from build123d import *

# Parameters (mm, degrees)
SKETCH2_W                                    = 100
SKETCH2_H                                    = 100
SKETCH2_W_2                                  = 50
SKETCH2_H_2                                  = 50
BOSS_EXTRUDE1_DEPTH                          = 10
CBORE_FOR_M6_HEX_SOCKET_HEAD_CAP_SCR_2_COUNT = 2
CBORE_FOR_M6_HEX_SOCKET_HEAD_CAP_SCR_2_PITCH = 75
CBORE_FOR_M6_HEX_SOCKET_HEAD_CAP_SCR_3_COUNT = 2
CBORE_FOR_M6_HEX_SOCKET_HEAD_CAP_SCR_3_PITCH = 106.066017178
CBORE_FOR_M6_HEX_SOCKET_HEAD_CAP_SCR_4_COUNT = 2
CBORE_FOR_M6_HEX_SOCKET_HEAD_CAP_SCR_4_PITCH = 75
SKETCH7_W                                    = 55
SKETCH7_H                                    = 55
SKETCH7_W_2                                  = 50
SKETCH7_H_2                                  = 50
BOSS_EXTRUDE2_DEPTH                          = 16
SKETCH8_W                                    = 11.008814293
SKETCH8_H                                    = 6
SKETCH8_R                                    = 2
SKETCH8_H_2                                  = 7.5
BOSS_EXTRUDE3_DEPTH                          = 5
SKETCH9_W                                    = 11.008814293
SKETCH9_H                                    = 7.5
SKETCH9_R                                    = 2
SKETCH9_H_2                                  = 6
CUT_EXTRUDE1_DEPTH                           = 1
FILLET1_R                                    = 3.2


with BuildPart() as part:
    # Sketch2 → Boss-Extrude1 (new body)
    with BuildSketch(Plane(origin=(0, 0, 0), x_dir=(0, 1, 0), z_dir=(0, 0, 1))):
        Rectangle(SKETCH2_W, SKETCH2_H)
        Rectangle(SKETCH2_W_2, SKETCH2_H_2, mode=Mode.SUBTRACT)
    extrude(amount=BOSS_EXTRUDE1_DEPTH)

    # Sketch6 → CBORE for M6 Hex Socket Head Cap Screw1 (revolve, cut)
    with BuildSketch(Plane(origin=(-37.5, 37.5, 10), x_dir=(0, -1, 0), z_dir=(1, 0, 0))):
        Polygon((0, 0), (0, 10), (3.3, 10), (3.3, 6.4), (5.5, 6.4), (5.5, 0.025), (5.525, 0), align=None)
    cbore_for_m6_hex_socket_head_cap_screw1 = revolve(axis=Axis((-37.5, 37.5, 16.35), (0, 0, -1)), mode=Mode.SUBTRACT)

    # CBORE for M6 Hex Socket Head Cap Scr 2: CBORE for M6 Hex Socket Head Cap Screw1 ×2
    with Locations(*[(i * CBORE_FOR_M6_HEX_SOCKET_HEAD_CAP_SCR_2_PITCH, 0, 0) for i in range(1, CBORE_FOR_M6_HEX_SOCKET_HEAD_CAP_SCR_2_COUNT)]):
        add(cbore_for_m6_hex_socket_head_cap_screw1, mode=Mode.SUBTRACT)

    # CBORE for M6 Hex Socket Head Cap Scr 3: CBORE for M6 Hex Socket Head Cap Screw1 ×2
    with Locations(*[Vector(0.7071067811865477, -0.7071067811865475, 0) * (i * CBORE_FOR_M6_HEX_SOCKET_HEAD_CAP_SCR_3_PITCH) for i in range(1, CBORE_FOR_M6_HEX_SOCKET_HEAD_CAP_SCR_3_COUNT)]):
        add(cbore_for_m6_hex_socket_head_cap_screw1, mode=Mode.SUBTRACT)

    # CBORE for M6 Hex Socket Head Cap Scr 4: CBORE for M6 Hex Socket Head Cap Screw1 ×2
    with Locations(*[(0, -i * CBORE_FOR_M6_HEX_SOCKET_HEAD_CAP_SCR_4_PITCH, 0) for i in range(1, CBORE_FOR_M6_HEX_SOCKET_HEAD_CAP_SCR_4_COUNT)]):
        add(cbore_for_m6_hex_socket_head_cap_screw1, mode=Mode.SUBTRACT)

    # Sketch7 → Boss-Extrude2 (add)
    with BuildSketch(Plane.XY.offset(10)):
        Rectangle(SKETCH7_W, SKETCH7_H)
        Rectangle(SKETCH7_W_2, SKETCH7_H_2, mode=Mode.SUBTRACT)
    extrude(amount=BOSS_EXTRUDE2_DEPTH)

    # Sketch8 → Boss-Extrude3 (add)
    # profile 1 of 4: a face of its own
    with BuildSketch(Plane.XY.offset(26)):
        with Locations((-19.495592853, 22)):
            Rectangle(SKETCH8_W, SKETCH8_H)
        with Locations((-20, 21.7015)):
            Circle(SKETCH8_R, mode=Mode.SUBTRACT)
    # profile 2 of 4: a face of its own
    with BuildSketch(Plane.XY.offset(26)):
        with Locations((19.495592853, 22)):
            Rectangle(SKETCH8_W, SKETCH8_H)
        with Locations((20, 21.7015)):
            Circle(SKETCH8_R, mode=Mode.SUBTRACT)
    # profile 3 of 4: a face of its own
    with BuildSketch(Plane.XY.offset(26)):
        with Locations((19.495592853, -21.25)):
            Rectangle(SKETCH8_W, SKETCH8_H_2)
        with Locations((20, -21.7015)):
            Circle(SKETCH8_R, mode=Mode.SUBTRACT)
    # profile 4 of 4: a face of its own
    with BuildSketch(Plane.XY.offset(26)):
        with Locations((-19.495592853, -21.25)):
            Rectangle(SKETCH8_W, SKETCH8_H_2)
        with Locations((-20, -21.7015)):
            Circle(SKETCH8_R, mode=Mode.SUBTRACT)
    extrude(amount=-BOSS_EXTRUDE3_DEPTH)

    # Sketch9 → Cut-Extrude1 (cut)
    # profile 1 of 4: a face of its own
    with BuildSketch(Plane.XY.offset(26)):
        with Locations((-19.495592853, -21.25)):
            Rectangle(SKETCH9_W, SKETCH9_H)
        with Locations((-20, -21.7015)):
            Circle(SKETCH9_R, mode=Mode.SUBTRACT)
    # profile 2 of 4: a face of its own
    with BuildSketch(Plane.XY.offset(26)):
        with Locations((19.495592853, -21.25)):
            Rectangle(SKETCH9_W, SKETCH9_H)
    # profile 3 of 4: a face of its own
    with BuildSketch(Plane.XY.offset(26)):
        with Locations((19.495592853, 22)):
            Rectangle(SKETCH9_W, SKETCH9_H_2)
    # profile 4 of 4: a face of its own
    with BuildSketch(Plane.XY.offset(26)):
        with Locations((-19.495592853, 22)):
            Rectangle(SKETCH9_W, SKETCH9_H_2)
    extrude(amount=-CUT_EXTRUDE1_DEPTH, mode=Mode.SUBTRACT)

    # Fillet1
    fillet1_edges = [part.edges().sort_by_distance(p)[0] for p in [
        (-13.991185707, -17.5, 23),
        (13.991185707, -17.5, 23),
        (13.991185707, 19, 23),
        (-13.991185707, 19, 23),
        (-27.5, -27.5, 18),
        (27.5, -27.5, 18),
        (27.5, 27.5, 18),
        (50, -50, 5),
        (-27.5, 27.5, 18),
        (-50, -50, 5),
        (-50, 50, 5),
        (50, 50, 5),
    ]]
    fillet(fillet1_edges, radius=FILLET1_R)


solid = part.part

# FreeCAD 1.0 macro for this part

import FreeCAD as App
import Part
import Sketcher
from FreeCAD import Vector
Q = App.Units.Quantity


def edges_at(feature, points):
    """Names of the edges that pass closest to the given points."""
    edges = feature.Shape.Edges
    near = lambda p: min(range(len(edges)), key=lambda i: edges[i].distToShape(Part.Vertex(*p))[0])
    return sorted({f"Edge{near(p) + 1}" for p in points})

doc = App.newDocument("Part")
body = doc.addObject("PartDesign::Body", "Body")

sketch1 = doc.addObject("Sketcher::SketchObject", "Sketch")
body.addObject(sketch1)
sketch1.AttachmentSupport = (doc.XY_Plane, [""])
sketch1.MapMode = "FlatFace"
sketch1.addGeometry([
    Part.LineSegment(Vector(-50, -50, 0), Vector(50, -50, 0)),
    Part.LineSegment(Vector(50, -50, 0), Vector(50, 50, 0)),
    Part.LineSegment(Vector(50, 50, 0), Vector(-50, 50, 0)),
    Part.LineSegment(Vector(-50, 50, 0), Vector(-50, -50, 0)),
    Part.LineSegment(Vector(25, 25, 0), Vector(25, -25, 0)),
    Part.LineSegment(Vector(25, -25, 0), Vector(-25, -25, 0)),
    Part.LineSegment(Vector(-25, -25, 0), Vector(-25, 25, 0)),
    Part.LineSegment(Vector(-25, 25, 0), Vector(25, 25, 0)),
], False)
sketch1.addConstraint([
    Sketcher.Constraint("Coincident", 0, 2, 1, 1),
    Sketcher.Constraint("Coincident", 1, 2, 2, 1),
    Sketcher.Constraint("Coincident", 2, 2, 3, 1),
    Sketcher.Constraint("Coincident", 3, 2, 0, 1),
    Sketcher.Constraint("Coincident", 4, 2, 5, 1),
    Sketcher.Constraint("Coincident", 5, 2, 6, 1),
    Sketcher.Constraint("Coincident", 6, 2, 7, 1),
    Sketcher.Constraint("Coincident", 7, 2, 4, 1),
    Sketcher.Constraint("Horizontal", 0),
    Sketcher.Constraint("Vertical", 1),
    Sketcher.Constraint("Horizontal", 2),
    Sketcher.Constraint("Vertical", 3),
    Sketcher.Constraint("Vertical", 4),
    Sketcher.Constraint("Horizontal", 5),
    Sketcher.Constraint("Vertical", 6),
    Sketcher.Constraint("Horizontal", 7),
    Sketcher.Constraint("Symmetric", 0, 2, 2, 2, -1, 1),
    Sketcher.Constraint("Symmetric", 4, 2, 6, 2, -1, 1),
    Sketcher.Constraint("Equal", 2, 1),
    Sketcher.Constraint("Equal", 7, 4),
    Sketcher.Constraint("DistanceX", 0, 1, 0, 2, 100.0),
    Sketcher.Constraint("DistanceX", 5, 2, 5, 1, 50.0),
])
pad1 = doc.addObject("PartDesign::Pad", "Pad")
body.addObject(pad1)
pad1.Profile = sketch1
pad1.Length = 10

sketch2 = doc.addObject("Sketcher::SketchObject", "Sketch001")
body.addObject(sketch2)
sketch2.AttachmentSupport = (doc.YZ_Plane, [""])
sketch2.MapMode = "FlatFace"
sketch2.AttachmentOffset = App.Placement(Vector(0, 0, -37.5), App.Rotation())
sketch2.addGeometry([
    Part.LineSegment(Vector(37.5, 0, 0), Vector(37.5, 10, 0)),
    Part.LineSegment(Vector(37.5, 10, 0), Vector(31.975, 10, 0)),
    Part.LineSegment(Vector(31.975, 10, 0), Vector(32, 9.975, 0)),
    Part.LineSegment(Vector(32, 9.975, 0), Vector(32, 3.6, 0)),
    Part.LineSegment(Vector(32, 3.6, 0), Vector(34.2, 3.6, 0)),
    Part.LineSegment(Vector(34.2, 3.6, 0), Vector(34.2, 0, 0)),
    Part.LineSegment(Vector(34.2, 0, 0), Vector(37.5, 0, 0)),
], False)
sketch2.addGeometry(Part.LineSegment(Vector(37.5, 10, 0), Vector(37.5, 0, 0)), True)
sketch2.addConstraint([
    Sketcher.Constraint("Coincident", 0, 2, 1, 1),
    Sketcher.Constraint("Coincident", 1, 2, 2, 1),
    Sketcher.Constraint("Coincident", 2, 2, 3, 1),
    Sketcher.Constraint("Coincident", 3, 2, 4, 1),
    Sketcher.Constraint("Coincident", 4, 2, 5, 1),
    Sketcher.Constraint("Coincident", 5, 2, 6, 1),
    Sketcher.Constraint("Coincident", 6, 2, 0, 1),
    Sketcher.Constraint("Vertical", 0),
    Sketcher.Constraint("Horizontal", 1),
    Sketcher.Constraint("Vertical", 3),
    Sketcher.Constraint("Horizontal", 4),
    Sketcher.Constraint("Vertical", 5),
    Sketcher.Constraint("Horizontal", 6),
    Sketcher.Constraint("Vertical", 7),
    Sketcher.Constraint("Coincident", 7, 1, 0, 2),
    Sketcher.Constraint("PointOnObject", 5, 2, -1),
    Sketcher.Constraint("PointOnObject", 7, 2, -1),
    Sketcher.Constraint("DistanceY", 0, 1, 0, 2, 10.0),
    Sketcher.Constraint("Angle", 2, Q("-45 deg")),
    Sketcher.Constraint("DistanceX", 4, 1, 4, 2, 2.2),
    Sketcher.Constraint("DistanceX", 6, 1, 6, 2, 3.3),
    Sketcher.Constraint("DistanceY", 5, 2, 5, 1, 3.6),
    Sketcher.Constraint("DistanceX", -1, 1, 2, 2, 32.0),
    Sketcher.Constraint("DistanceX", 1, 2, 1, 1, 5.525),
])
groove = doc.addObject("PartDesign::Groove", "Groove")
body.addObject(groove)
groove.Profile = sketch2
groove.ReferenceAxis = (sketch2, ["Axis0"])
groove.Angle = 360
doc.recompute()

linearpattern = doc.addObject("PartDesign::LinearPattern", "LinearPattern")
body.addObject(linearpattern)
linearpattern.Originals = [groove]
linearpattern.Direction = (doc.X_Axis, [""])
linearpattern.Mode = "offset"
linearpattern.Offset = 75
linearpattern.Occurrences = 2
body.Tip = linearpattern
doc.recompute()

datumline = doc.addObject("PartDesign::Line", "DatumLine")
body.addObject(datumline)
datumline.Placement = App.Placement(Vector(0, 0, 0), App.Rotation(Vector(0, 0, 1), Vector(0.707106781, -0.707106781, 0)))
linearpattern2 = doc.addObject("PartDesign::LinearPattern", "LinearPattern001")
body.addObject(linearpattern2)
linearpattern2.Originals = [groove]
linearpattern2.Direction = (datumline, [""])
linearpattern2.Mode = "offset"
linearpattern2.Offset = 106.066017
linearpattern2.Occurrences = 2
body.Tip = linearpattern2
doc.recompute()

linearpattern3 = doc.addObject("PartDesign::LinearPattern", "LinearPattern002")
body.addObject(linearpattern3)
linearpattern3.Originals = [groove]
linearpattern3.Direction = (doc.Y_Axis, [""])
linearpattern3.Mode = "offset"
linearpattern3.Offset = 75
linearpattern3.Occurrences = 2
linearpattern3.Reversed = True
body.Tip = linearpattern3

sketch3 = doc.addObject("Sketcher::SketchObject", "Sketch002")
body.addObject(sketch3)
sketch3.AttachmentSupport = (doc.XY_Plane, [""])
sketch3.MapMode = "FlatFace"
sketch3.AttachmentOffset = App.Placement(Vector(0, 0, 10), App.Rotation())
sketch3.addGeometry([
    Part.LineSegment(Vector(-27.5, 27.5, 0), Vector(-27.5, -27.5, 0)),
    Part.LineSegment(Vector(-27.5, -27.5, 0), Vector(27.5, -27.5, 0)),
    Part.LineSegment(Vector(27.5, -27.5, 0), Vector(27.5, 27.5, 0)),
    Part.LineSegment(Vector(27.5, 27.5, 0), Vector(-27.5, 27.5, 0)),
    Part.LineSegment(Vector(25, -25, 0), Vector(-25, -25, 0)),
    Part.LineSegment(Vector(-25, -25, 0), Vector(-25, 25, 0)),
    Part.LineSegment(Vector(-25, 25, 0), Vector(25, 25, 0)),
    Part.LineSegment(Vector(25, 25, 0), Vector(25, -25, 0)),
], False)
sketch3.addConstraint([
    Sketcher.Constraint("Coincident", 0, 2, 1, 1),
    Sketcher.Constraint("Coincident", 1, 2, 2, 1),
    Sketcher.Constraint("Coincident", 2, 2, 3, 1),
    Sketcher.Constraint("Coincident", 3, 2, 0, 1),
    Sketcher.Constraint("Coincident", 4, 2, 5, 1),
    Sketcher.Constraint("Coincident", 5, 2, 6, 1),
    Sketcher.Constraint("Coincident", 6, 2, 7, 1),
    Sketcher.Constraint("Coincident", 7, 2, 4, 1),
    Sketcher.Constraint("Vertical", 0),
    Sketcher.Constraint("Horizontal", 1),
    Sketcher.Constraint("Vertical", 2),
    Sketcher.Constraint("Horizontal", 3),
    Sketcher.Constraint("Horizontal", 4),
    Sketcher.Constraint("Vertical", 5),
    Sketcher.Constraint("Horizontal", 6),
    Sketcher.Constraint("Vertical", 7),
    Sketcher.Constraint("Symmetric", 0, 2, 2, 2, -1, 1),
    Sketcher.Constraint("Symmetric", 4, 2, 6, 2, -1, 1),
    Sketcher.Constraint("Equal", 3, 0),
    Sketcher.Constraint("Equal", 6, 5),
    Sketcher.Constraint("DistanceX", 1, 1, 1, 2, 55.0),
    Sketcher.Constraint("DistanceX", 4, 2, 4, 1, 50.0),
])
pad2 = doc.addObject("PartDesign::Pad", "Pad001")
body.addObject(pad2)
pad2.Profile = sketch3
pad2.Length = 16

sketch4 = doc.addObject("Sketcher::SketchObject", "Sketch003")
body.addObject(sketch4)
sketch4.AttachmentSupport = (doc.XY_Plane, [""])
sketch4.MapMode = "FlatFace"
sketch4.AttachmentOffset = App.Placement(Vector(0, 0, 26), App.Rotation())
sketch4.addGeometry([
    Part.LineSegment(Vector(-25, 25, 0), Vector(-25, 19, 0)),
    Part.LineSegment(Vector(-25, 19, 0), Vector(-13.991186, 19, 0)),
    Part.LineSegment(Vector(-13.991186, 19, 0), Vector(-13.991186, 25, 0)),
    Part.LineSegment(Vector(-13.991186, 25, 0), Vector(-25, 25, 0)),
    Part.Circle(Vector(-20, 21.7015, 0), Vector(0, 0, 1), 2),
    Part.LineSegment(Vector(13.991186, 25, 0), Vector(13.991186, 19, 0)),
    Part.LineSegment(Vector(13.991186, 19, 0), Vector(25, 19, 0)),
    Part.LineSegment(Vector(25, 19, 0), Vector(25, 25, 0)),
    Part.LineSegment(Vector(25, 25, 0), Vector(13.991186, 25, 0)),
    Part.Circle(Vector(20, 21.7015, 0), Vector(0, 0, 1), 2),
    Part.LineSegment(Vector(13.991186, -17.5, 0), Vector(13.991186, -25, 0)),
    Part.LineSegment(Vector(13.991186, -25, 0), Vector(25, -25, 0)),
    Part.LineSegment(Vector(25, -25, 0), Vector(25, -17.5, 0)),
    Part.LineSegment(Vector(25, -17.5, 0), Vector(13.991186, -17.5, 0)),
    Part.Circle(Vector(20, -21.7015, 0), Vector(0, 0, 1), 2),
    Part.LineSegment(Vector(-25, -17.5, 0), Vector(-25, -25, 0)),
    Part.LineSegment(Vector(-25, -25, 0), Vector(-13.991186, -25, 0)),
    Part.LineSegment(Vector(-13.991186, -25, 0), Vector(-13.991186, -17.5, 0)),
    Part.LineSegment(Vector(-13.991186, -17.5, 0), Vector(-25, -17.5, 0)),
    Part.Circle(Vector(-20, -21.7015, 0), Vector(0, 0, 1), 2),
], False)
sketch4.addConstraint([
    Sketcher.Constraint("Coincident", 0, 2, 1, 1),
    Sketcher.Constraint("Coincident", 1, 2, 2, 1),
    Sketcher.Constraint("Coincident", 2, 2, 3, 1),
    Sketcher.Constraint("Coincident", 3, 2, 0, 1),
    Sketcher.Constraint("Coincident", 5, 2, 6, 1),
    Sketcher.Constraint("Coincident", 6, 2, 7, 1),
    Sketcher.Constraint("Coincident", 7, 2, 8, 1),
    Sketcher.Constraint("Coincident", 8, 2, 5, 1),
    Sketcher.Constraint("Coincident", 10, 2, 11, 1),
    Sketcher.Constraint("Coincident", 11, 2, 12, 1),
    Sketcher.Constraint("Coincident", 12, 2, 13, 1),
    Sketcher.Constraint("Coincident", 13, 2, 10, 1),
    Sketcher.Constraint("Coincident", 15, 2, 16, 1),
    Sketcher.Constraint("Coincident", 16, 2, 17, 1),
    Sketcher.Constraint("Coincident", 17, 2, 18, 1),
    Sketcher.Constraint("Coincident", 18, 2, 15, 1),
    Sketcher.Constraint("Vertical", 0),
    Sketcher.Constraint("Horizontal", 1),
    Sketcher.Constraint("Vertical", 2),
    Sketcher.Constraint("Horizontal", 3),
    Sketcher.Constraint("Vertical", 5),
    Sketcher.Constraint("Horizontal", 6),
    Sketcher.Constraint("Vertical", 7),
    Sketcher.Constraint("Horizontal", 8),
    Sketcher.Constraint("Vertical", 10),
    Sketcher.Constraint("Horizontal", 11),
    Sketcher.Constraint("Vertical", 12),
    Sketcher.Constraint("Horizontal", 13),
    Sketcher.Constraint("Vertical", 15),
    Sketcher.Constraint("Horizontal", 16),
    Sketcher.Constraint("Vertical", 17),
    Sketcher.Constraint("Horizontal", 18),
    Sketcher.Constraint("Equal", 4, 9),
    Sketcher.Constraint("Equal", 9, 14),
    Sketcher.Constraint("Equal", 14, 19),
    Sketcher.Constraint("Symmetric", 4, 3, 14, 3, -1, 1),
    Sketcher.Constraint("Symmetric", 9, 3, 19, 3, -1, 1),
    Sketcher.Constraint("Symmetric", 2, 2, 10, 2, -1, 1),
    Sketcher.Constraint("Symmetric", 7, 2, 15, 2, -1, 1),
    Sketcher.Constraint("Symmetric", 4, 3, 9, 3, -2),
    Sketcher.Constraint("Symmetric", 1, 2, 5, 2, -2),
    Sketcher.Constraint("Symmetric", 3, 2, 7, 2, -2),
    Sketcher.Constraint("Symmetric", 13, 2, 17, 2, -2),
    Sketcher.Constraint("Vertical", 7, 2, 11, 2),
    Sketcher.Constraint("Diameter", 4, 4.0),
    Sketcher.Constraint("DistanceY", 0, 2, 0, 1, 6.0),
    Sketcher.Constraint("DistanceY", 10, 2, 10, 1, 7.5),
    Sketcher.Constraint("DistanceX", 4, 3, -1, 1, 20.0),
    Sketcher.Constraint("DistanceX", 0, 2, -1, 1, 25.0),
    Sketcher.Constraint("DistanceY", -1, 1, 0, 2, 19.0),
    Sketcher.Constraint("DistanceY", 14, 3, 9, 3, 43.403),
    Sketcher.Constraint("DistanceX", 1, 1, 1, 2, 11.008814),
])
pad3 = doc.addObject("PartDesign::Pad", "Pad002")
body.addObject(pad3)
pad3.Profile = sketch4
pad3.Length = 5
pad3.Reversed = True

sketch5 = doc.addObject("Sketcher::SketchObject", "Sketch004")
body.addObject(sketch5)
sketch5.AttachmentSupport = (doc.XY_Plane, [""])
sketch5.MapMode = "FlatFace"
sketch5.AttachmentOffset = App.Placement(Vector(0, 0, 26), App.Rotation())
sketch5.addGeometry([
    Part.LineSegment(Vector(-25, -17.5, 0), Vector(-25, -25, 0)),
    Part.LineSegment(Vector(-25, -25, 0), Vector(-13.991186, -25, 0)),
    Part.LineSegment(Vector(-13.991186, -25, 0), Vector(-13.991186, -17.5, 0)),
    Part.LineSegment(Vector(-13.991186, -17.5, 0), Vector(-25, -17.5, 0)),
    Part.Circle(Vector(-20, -21.7015, 0), Vector(0, 0, 1), 2),
    Part.LineSegment(Vector(13.991186, -17.5, 0), Vector(13.991186, -25, 0)),
    Part.LineSegment(Vector(13.991186, -25, 0), Vector(25, -25, 0)),
    Part.LineSegment(Vector(25, -25, 0), Vector(25, -17.5, 0)),
    Part.LineSegment(Vector(25, -17.5, 0), Vector(13.991186, -17.5, 0)),
    Part.LineSegment(Vector(13.991186, 25, 0), Vector(13.991186, 19, 0)),
    Part.LineSegment(Vector(13.991186, 19, 0), Vector(25, 19, 0)),
    Part.LineSegment(Vector(25, 19, 0), Vector(25, 25, 0)),
    Part.LineSegment(Vector(25, 25, 0), Vector(13.991186, 25, 0)),
    Part.LineSegment(Vector(-25, 25, 0), Vector(-25, 19, 0)),
    Part.LineSegment(Vector(-25, 19, 0), Vector(-13.991186, 19, 0)),
    Part.LineSegment(Vector(-13.991186, 19, 0), Vector(-13.991186, 25, 0)),
    Part.LineSegment(Vector(-13.991186, 25, 0), Vector(-25, 25, 0)),
], False)
sketch5.addConstraint([
    Sketcher.Constraint("Coincident", 0, 2, 1, 1),
    Sketcher.Constraint("Coincident", 1, 2, 2, 1),
    Sketcher.Constraint("Coincident", 2, 2, 3, 1),
    Sketcher.Constraint("Coincident", 3, 2, 0, 1),
    Sketcher.Constraint("Coincident", 5, 2, 6, 1),
    Sketcher.Constraint("Coincident", 6, 2, 7, 1),
    Sketcher.Constraint("Coincident", 7, 2, 8, 1),
    Sketcher.Constraint("Coincident", 8, 2, 5, 1),
    Sketcher.Constraint("Coincident", 9, 2, 10, 1),
    Sketcher.Constraint("Coincident", 10, 2, 11, 1),
    Sketcher.Constraint("Coincident", 11, 2, 12, 1),
    Sketcher.Constraint("Coincident", 12, 2, 9, 1),
    Sketcher.Constraint("Coincident", 13, 2, 14, 1),
    Sketcher.Constraint("Coincident", 14, 2, 15, 1),
    Sketcher.Constraint("Coincident", 15, 2, 16, 1),
    Sketcher.Constraint("Coincident", 16, 2, 13, 1),
    Sketcher.Constraint("Vertical", 0),
    Sketcher.Constraint("Horizontal", 1),
    Sketcher.Constraint("Vertical", 2),
    Sketcher.Constraint("Horizontal", 3),
    Sketcher.Constraint("Vertical", 5),
    Sketcher.Constraint("Horizontal", 6),
    Sketcher.Constraint("Vertical", 7),
    Sketcher.Constraint("Horizontal", 8),
    Sketcher.Constraint("Vertical", 9),
    Sketcher.Constraint("Horizontal", 10),
    Sketcher.Constraint("Vertical", 11),
    Sketcher.Constraint("Horizontal", 12),
    Sketcher.Constraint("Vertical", 13),
    Sketcher.Constraint("Horizontal", 14),
    Sketcher.Constraint("Vertical", 15),
    Sketcher.Constraint("Horizontal", 16),
    Sketcher.Constraint("Symmetric", 0, 2, 11, 2, -1, 1),
    Sketcher.Constraint("Symmetric", 5, 2, 15, 2, -1, 1),
    Sketcher.Constraint("Symmetric", 1, 2, 5, 2, -2),
    Sketcher.Constraint("Symmetric", 3, 2, 7, 2, -2),
    Sketcher.Constraint("Symmetric", 10, 2, 13, 2, -2),
    Sketcher.Constraint("Vertical", 8, 2, 9, 2),
    Sketcher.Constraint("Diameter", 4, 4.0),
    Sketcher.Constraint("DistanceY", 9, 2, 9, 1, 6.0),
    Sketcher.Constraint("DistanceY", 0, 2, 0, 1, 7.5),
    Sketcher.Constraint("DistanceX", 4, 3, -1, 1, 20.0),
    Sketcher.Constraint("DistanceX", 0, 2, -1, 1, 25.0),
    Sketcher.Constraint("DistanceY", 0, 2, -1, 1, 25.0),
    Sketcher.Constraint("DistanceY", 4, 3, -1, 1, 21.7015),
    Sketcher.Constraint("DistanceX", 1, 1, 1, 2, 11.008814),
])
pocket1 = doc.addObject("PartDesign::Pocket", "Pocket")
body.addObject(pocket1)
pocket1.Profile = sketch5
pocket1.Length = 1
doc.recompute()

fillet = doc.addObject("PartDesign::Fillet", "Fillet")
body.addObject(fillet)
fillet.Base = (pocket1, edges_at(pocket1, [
    (-13.991, -17.5, 23),
    (13.991, -17.5, 23),
    (13.991, 19, 23),
    (-13.991, 19, 23),
    (-27.5, -27.5, 18),
    (27.5, -27.5, 18),
    (27.5, 27.5, 18),
    (50, -50, 5),
    (-27.5, 27.5, 18),
    (-50, -50, 5),
    (-50, 50, 5),
    (50, 50, 5),
]))
fillet.Radius = 3.2

doc.recompute()
